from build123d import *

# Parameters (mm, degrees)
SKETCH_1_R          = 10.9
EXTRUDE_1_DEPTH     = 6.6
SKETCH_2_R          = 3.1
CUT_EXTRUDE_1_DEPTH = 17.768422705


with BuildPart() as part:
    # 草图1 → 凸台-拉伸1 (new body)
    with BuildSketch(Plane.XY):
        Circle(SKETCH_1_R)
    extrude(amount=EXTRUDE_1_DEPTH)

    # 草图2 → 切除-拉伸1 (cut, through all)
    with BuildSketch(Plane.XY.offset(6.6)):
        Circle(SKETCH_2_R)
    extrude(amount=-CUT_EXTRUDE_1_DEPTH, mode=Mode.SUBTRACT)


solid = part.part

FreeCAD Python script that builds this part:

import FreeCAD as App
import Part
import Sketcher
Q = App.Units.Quantity

doc = App.newDocument("Part")
body = doc.addObject("PartDesign::Body", "Body")

# Sketch on XY plane
sketch1 = body.newObject("Sketcher::SketchObject", "Sketch")
sketch1.AttachmentSupport = (doc.getObject("XY_Plane"), [""])
sketch1.MapMode = "FlatFace"
sketch1.addGeometry(Part.Circle(App.Vector(0, 0, 0), App.Vector(0, 0, 1), 11), False)
sketch1.addConstraint([
    Sketcher.Constraint("Coincident", 0, 3, -1, 1),
    Sketcher.Constraint("Diameter", 0, Q("21.8 mm")),
])
pad1 = body.newObject("PartDesign::Pad", "Pad")
pad1.Profile = sketch1
pad1.Length = 6.6

# Sketch on XY plane
sketch2 = body.newObject("Sketcher::SketchObject", "Sketch001")
sketch2.AttachmentSupport = (doc.getObject("XY_Plane"), [""])
sketch2.MapMode = "FlatFace"
sketch2.AttachmentOffset = App.Placement(App.Vector(0, 0, 6.6), App.Rotation())
sketch2.addGeometry(Part.Circle(App.Vector(0, 0, 0), App.Vector(0, 0, 1), 3.1), False)
sketch2.addConstraint([
    Sketcher.Constraint("Coincident", 0, 3, -1, 1),
    Sketcher.Constraint("Diameter", 0, Q("6.2 mm")),
])
pocket1 = body.newObject("PartDesign::Pocket", "Pocket")
pocket1.Profile = sketch2
pocket1.Type = "ThroughAll"

doc.recompute()
